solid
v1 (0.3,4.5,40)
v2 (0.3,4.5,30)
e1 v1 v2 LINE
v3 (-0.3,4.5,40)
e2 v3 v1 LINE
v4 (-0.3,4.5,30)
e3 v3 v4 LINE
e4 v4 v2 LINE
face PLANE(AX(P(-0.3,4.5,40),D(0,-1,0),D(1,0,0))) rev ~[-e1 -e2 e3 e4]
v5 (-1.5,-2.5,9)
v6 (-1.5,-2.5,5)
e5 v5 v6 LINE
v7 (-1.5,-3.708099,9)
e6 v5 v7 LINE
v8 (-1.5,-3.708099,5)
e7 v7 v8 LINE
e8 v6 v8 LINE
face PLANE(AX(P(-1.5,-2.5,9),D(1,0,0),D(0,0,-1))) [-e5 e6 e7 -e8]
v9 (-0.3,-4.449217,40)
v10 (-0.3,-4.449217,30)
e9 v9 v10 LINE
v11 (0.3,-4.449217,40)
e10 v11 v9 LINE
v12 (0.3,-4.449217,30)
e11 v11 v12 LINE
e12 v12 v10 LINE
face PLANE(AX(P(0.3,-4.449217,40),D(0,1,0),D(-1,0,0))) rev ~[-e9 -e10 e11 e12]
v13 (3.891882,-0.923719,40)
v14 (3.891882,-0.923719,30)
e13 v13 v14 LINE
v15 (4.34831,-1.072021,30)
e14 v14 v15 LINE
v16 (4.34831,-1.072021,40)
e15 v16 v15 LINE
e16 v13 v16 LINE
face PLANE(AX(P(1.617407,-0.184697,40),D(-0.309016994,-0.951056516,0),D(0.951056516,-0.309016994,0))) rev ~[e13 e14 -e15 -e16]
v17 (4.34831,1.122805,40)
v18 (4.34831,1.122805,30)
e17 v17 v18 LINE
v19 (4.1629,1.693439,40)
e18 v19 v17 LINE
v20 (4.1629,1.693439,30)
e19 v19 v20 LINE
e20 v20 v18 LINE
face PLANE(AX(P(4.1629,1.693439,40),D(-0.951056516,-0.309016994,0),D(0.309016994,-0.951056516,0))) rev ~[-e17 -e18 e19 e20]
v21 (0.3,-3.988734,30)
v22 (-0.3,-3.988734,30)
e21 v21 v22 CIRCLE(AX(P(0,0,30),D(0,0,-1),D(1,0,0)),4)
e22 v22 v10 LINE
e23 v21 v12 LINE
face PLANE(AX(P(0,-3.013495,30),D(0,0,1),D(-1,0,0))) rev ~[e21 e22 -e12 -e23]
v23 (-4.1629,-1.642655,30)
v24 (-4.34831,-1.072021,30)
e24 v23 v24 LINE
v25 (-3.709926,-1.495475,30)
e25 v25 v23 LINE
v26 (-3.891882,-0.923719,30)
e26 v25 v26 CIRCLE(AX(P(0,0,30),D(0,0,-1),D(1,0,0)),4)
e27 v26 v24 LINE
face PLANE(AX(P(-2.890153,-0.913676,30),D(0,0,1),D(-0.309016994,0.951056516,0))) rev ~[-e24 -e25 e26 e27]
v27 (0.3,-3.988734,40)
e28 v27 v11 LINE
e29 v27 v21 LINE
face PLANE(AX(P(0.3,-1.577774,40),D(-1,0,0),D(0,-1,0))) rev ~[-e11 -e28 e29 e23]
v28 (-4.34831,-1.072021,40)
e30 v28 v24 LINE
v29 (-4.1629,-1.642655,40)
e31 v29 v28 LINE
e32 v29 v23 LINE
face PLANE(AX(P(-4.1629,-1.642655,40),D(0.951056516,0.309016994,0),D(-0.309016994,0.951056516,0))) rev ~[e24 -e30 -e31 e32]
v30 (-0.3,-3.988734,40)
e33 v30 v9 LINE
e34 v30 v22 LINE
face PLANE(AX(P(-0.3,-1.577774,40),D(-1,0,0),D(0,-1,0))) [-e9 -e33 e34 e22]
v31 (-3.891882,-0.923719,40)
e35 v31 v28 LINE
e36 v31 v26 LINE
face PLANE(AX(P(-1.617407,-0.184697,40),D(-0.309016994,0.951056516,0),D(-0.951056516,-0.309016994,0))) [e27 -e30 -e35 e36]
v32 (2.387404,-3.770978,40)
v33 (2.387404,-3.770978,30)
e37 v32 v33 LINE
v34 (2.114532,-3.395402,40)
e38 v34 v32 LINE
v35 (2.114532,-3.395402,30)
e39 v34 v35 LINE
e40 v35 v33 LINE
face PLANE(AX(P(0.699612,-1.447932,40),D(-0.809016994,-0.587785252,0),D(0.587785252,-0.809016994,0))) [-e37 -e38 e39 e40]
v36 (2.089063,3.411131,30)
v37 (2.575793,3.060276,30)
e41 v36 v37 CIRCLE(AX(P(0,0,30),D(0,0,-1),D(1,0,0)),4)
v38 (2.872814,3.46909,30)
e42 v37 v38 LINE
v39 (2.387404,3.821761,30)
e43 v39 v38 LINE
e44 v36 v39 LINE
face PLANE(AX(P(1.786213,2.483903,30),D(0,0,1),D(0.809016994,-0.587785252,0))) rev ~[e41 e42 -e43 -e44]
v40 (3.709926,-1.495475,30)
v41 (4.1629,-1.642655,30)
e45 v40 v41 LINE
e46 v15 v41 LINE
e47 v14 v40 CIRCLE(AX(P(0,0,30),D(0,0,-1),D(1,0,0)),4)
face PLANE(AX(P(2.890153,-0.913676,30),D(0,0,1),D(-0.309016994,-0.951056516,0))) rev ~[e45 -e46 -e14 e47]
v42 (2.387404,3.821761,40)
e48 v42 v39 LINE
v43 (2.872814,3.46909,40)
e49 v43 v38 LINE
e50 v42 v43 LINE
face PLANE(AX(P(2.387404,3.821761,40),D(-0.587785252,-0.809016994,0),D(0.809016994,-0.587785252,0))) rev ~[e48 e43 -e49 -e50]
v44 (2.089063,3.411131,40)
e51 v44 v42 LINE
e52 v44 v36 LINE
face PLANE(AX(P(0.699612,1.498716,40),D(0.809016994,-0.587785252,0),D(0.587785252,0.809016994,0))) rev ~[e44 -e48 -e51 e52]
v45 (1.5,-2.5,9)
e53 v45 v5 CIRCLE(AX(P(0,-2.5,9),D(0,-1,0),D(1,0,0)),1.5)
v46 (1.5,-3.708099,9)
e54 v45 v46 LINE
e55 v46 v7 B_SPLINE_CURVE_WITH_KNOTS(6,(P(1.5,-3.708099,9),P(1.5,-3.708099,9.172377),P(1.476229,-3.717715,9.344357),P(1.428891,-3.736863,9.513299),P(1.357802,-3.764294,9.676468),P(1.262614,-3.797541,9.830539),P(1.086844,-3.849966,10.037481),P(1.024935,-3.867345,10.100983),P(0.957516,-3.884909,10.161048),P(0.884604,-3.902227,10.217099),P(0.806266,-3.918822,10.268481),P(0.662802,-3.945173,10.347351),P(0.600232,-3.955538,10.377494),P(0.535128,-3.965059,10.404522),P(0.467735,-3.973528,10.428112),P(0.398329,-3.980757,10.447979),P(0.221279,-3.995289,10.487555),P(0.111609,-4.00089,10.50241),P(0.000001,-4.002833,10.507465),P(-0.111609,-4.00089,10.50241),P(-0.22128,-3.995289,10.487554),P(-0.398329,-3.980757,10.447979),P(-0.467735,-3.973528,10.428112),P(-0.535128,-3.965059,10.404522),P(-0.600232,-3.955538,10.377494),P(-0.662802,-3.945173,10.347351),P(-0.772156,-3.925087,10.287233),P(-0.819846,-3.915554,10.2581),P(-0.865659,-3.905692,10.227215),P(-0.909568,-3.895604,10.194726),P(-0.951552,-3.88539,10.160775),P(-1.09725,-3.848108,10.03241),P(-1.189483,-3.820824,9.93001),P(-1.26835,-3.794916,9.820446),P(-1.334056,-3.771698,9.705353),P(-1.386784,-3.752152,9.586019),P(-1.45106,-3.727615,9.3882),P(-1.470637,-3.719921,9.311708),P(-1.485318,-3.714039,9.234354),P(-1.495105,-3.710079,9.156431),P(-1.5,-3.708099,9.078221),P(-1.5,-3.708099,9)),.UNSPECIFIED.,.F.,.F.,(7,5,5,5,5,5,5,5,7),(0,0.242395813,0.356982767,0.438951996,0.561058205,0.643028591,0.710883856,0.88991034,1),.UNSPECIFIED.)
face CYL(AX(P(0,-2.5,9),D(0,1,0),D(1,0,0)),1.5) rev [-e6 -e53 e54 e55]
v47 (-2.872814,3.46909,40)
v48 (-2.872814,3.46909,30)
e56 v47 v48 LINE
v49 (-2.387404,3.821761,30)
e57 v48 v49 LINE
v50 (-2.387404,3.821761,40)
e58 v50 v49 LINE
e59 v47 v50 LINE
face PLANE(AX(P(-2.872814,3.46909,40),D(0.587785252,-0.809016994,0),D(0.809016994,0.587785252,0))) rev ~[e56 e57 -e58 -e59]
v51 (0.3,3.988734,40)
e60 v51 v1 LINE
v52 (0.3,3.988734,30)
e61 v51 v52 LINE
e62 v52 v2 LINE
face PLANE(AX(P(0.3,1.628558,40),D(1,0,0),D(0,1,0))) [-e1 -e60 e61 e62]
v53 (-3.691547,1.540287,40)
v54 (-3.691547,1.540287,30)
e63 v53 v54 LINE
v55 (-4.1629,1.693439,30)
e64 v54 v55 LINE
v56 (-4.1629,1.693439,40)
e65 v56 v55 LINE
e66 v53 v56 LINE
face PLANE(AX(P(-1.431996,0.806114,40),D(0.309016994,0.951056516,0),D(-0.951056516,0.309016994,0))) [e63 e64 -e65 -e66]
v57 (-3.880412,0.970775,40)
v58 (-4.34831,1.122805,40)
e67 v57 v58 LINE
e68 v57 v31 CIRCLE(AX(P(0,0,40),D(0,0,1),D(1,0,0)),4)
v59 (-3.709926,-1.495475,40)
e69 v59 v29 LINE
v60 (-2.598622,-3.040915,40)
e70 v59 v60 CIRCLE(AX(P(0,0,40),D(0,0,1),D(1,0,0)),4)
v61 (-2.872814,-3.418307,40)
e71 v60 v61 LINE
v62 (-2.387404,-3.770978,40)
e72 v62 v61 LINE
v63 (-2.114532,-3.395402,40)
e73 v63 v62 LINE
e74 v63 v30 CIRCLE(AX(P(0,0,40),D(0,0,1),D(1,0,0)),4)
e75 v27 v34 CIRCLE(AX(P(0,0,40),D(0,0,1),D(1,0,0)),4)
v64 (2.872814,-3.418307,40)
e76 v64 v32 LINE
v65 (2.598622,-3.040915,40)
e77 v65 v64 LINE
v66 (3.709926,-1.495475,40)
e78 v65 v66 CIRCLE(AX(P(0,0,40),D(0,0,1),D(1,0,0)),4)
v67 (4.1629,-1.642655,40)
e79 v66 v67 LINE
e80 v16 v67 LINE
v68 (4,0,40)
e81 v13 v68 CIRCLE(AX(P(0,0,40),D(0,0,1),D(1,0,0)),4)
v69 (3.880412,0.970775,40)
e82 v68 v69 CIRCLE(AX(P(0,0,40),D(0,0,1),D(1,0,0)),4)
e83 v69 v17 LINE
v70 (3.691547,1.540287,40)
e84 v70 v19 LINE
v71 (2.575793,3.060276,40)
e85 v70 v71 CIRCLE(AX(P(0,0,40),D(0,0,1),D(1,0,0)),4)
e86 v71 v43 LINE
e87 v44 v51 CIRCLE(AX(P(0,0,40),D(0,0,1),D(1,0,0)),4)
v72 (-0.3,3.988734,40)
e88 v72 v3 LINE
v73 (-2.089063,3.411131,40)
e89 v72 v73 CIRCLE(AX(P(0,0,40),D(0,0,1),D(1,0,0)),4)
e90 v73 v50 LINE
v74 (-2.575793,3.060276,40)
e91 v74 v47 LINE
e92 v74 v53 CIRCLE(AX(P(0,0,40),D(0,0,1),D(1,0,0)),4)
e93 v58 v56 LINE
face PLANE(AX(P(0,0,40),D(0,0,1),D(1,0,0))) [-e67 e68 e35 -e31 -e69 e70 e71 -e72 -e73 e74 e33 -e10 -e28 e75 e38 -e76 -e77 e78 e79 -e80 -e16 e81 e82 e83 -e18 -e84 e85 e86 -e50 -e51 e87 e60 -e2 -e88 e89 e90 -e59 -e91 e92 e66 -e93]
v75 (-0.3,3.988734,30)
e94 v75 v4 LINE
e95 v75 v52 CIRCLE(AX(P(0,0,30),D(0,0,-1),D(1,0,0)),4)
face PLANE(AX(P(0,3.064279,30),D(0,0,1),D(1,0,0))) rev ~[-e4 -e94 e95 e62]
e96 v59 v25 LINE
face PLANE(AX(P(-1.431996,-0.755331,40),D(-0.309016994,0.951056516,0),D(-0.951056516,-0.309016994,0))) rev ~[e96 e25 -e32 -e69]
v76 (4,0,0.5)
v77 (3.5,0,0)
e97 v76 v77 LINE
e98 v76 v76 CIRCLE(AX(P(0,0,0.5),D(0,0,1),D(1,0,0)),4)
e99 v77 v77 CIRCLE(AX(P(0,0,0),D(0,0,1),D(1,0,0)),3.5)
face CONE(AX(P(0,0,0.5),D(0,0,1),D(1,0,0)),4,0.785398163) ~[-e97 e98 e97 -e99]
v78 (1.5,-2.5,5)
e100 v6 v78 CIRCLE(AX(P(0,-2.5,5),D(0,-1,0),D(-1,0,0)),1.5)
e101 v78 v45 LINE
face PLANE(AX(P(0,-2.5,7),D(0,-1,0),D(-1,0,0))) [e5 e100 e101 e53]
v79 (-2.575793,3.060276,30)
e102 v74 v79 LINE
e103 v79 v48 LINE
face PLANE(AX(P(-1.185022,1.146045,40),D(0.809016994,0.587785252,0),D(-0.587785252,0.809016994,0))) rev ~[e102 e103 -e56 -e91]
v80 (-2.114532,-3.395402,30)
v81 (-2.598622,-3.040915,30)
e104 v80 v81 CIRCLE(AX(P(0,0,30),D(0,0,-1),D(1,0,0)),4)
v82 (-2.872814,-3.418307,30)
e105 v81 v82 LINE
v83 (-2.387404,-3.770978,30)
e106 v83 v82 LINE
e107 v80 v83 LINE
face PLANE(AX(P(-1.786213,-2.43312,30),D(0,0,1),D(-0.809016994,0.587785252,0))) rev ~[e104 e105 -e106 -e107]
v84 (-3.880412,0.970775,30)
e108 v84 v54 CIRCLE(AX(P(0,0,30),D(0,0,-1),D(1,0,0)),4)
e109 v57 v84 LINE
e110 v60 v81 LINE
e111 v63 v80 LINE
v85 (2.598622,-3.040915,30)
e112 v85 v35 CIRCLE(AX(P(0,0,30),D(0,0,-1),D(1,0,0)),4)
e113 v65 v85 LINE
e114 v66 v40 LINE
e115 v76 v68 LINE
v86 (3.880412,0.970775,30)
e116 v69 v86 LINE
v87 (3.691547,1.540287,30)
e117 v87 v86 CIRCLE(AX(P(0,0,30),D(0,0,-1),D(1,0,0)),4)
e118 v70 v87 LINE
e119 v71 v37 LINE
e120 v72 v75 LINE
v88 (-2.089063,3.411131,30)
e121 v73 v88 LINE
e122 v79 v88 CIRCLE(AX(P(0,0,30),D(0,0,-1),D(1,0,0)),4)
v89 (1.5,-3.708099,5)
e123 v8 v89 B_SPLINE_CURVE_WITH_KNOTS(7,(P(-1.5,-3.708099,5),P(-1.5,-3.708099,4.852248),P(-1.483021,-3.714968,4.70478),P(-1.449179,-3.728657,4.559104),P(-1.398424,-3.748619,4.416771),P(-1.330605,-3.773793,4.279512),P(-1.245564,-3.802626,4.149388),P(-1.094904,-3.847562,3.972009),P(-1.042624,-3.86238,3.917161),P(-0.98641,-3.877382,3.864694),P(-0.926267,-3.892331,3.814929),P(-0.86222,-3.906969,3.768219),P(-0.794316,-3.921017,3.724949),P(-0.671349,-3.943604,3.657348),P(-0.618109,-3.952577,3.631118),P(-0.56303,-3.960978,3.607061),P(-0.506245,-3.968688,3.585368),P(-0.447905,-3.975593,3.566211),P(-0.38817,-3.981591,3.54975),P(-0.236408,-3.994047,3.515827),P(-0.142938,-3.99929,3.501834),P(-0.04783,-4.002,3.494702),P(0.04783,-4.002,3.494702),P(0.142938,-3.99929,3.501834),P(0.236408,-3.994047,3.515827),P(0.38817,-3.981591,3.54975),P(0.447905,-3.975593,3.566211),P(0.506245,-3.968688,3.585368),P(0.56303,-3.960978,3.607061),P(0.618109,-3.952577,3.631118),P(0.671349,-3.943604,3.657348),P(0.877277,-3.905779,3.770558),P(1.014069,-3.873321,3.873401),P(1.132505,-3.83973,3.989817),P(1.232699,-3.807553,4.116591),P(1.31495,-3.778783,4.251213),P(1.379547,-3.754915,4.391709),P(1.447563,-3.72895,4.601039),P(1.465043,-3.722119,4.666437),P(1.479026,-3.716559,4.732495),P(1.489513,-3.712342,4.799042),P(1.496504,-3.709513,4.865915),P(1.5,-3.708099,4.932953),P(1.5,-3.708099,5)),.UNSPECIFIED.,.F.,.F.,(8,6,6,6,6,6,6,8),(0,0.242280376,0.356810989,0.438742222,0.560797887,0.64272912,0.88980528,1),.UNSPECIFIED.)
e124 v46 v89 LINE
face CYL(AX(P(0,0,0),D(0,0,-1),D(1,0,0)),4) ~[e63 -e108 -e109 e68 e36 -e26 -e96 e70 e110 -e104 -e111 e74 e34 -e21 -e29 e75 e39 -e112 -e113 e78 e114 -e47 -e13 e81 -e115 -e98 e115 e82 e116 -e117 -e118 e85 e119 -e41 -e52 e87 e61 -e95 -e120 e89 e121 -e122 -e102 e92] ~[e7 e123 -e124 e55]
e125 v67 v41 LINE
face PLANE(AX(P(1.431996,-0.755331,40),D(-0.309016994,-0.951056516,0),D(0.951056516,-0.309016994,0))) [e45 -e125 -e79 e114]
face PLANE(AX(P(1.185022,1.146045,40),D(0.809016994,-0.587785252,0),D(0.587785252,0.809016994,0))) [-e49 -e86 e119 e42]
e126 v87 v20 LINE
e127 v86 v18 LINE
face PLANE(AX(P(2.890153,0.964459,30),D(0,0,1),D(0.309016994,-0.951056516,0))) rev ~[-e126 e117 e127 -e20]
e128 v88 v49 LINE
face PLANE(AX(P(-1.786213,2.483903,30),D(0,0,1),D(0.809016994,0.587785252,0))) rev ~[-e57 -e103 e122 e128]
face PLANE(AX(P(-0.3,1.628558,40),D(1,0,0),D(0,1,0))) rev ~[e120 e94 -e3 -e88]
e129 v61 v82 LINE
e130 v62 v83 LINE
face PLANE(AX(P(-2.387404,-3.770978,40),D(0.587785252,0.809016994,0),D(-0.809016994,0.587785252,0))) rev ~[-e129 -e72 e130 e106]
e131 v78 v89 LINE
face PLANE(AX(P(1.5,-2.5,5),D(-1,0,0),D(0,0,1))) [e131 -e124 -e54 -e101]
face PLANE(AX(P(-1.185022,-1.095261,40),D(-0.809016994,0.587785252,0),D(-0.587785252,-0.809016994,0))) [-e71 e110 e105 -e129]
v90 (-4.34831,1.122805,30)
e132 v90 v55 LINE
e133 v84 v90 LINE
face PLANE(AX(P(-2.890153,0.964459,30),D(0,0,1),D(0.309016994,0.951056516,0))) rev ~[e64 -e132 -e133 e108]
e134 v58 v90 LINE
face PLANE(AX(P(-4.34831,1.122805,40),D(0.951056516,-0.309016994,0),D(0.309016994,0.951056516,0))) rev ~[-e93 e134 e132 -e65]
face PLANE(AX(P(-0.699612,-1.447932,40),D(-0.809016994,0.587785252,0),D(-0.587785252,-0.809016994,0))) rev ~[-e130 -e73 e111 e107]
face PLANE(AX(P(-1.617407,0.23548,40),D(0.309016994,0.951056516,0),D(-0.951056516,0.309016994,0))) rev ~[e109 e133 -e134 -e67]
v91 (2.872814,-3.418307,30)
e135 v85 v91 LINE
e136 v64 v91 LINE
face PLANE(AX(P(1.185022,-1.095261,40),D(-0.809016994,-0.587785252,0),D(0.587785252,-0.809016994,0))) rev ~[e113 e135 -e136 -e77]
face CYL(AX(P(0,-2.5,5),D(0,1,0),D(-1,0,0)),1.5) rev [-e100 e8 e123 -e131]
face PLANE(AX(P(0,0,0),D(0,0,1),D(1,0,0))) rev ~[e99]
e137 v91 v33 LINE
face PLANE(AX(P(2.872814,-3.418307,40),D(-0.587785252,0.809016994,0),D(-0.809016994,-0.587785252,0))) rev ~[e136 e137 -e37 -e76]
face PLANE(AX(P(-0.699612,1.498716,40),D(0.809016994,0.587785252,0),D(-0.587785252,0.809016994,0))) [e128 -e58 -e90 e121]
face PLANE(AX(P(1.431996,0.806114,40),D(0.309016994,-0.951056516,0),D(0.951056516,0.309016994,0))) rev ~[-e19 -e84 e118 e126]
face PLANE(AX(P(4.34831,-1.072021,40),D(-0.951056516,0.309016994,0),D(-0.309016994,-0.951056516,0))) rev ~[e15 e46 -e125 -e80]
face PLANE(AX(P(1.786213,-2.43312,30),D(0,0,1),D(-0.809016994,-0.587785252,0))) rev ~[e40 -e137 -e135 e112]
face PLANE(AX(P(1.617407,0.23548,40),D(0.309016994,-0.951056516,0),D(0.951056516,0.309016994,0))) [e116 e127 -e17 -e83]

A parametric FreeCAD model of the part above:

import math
import FreeCAD as App
import Part
import Sketcher
Q = App.Units.Quantity


def edges_at(feature, points):
    """Names of the edges that pass closest to the given points."""
    edges = feature.Shape.Edges
    near = lambda p: min(range(len(edges)), key=lambda i: edges[i].distToShape(Part.Vertex(*p))[0])
    return sorted({f"Edge{near(p) + 1}" for p in points})

doc = App.newDocument("Part")
params = doc.addObject("Spreadsheet::Sheet", "Params")
for row, (alias, value) in enumerate([
    ("sketch1_diameter", "8 mm"),
    ("pad1_length", "40 mm"),
    ("sketch2_radius", "1.5 mm"),
    ("sketch2_height", "4 mm"),
    ("sketch3_width", "0.6 mm"),
    ("pad2_length", "10 mm"),
    ("chamfer_size", "0.5 mm"),
], start=1):
    params.set(f"A{row}", alias)
    params.set(f"B{row}", "=" + value)
    params.setAlias(f"B{row}", alias)

body = doc.addObject("PartDesign::Body", "Body")

sketch1 = body.newObject("Sketcher::SketchObject", "Sketch")
sketch1.AttachmentSupport = (doc.getObject("XY_Plane"), [""])
sketch1.MapMode = "FlatFace"
sketch1.addGeometry(Part.Circle(App.Vector(0, 0, 0), App.Vector(0, 0, 1), 4), False)
sketch1.addConstraint([
    Sketcher.Constraint("Coincident", 0, 3, -1, 1),
    Sketcher.Constraint("Diameter", 0, Q("8 mm")),
])
sketch1.setExpression("Constraints[1]", "Params.sketch1_diameter")
pad1 = body.newObject("PartDesign::Pad", "Pad")
pad1.Profile = sketch1
pad1.setExpression("Length", "Params.pad1_length")

sketch2 = body.newObject("Sketcher::SketchObject", "Sketch001")
sketch2.AttachmentSupport = (doc.getObject("XZ_Plane"), [""])
sketch2.MapMode = "FlatFace"
sketch2.AttachmentOffset = App.Placement(App.Vector(0, 0, 2.5), App.Rotation())
sketch2.addGeometry([
    Part.LineSegment(App.Vector(1.5, 9, 0), App.Vector(1.5, 5, 0)),
    Part.ArcOfCircle(Part.Circle(App.Vector(0, 5, 0), App.Vector(0, 0, 1), 1.5), math.radians(180), math.radians(360)),
    Part.LineSegment(App.Vector(-1.5, 5, 0), App.Vector(-1.5, 9, 0)),
    Part.ArcOfCircle(Part.Circle(App.Vector(0, 9, 0), App.Vector(0, 0, 1), 1.5), math.radians(0), math.radians(180)),
], False)
sketch2.addConstraint([
    Sketcher.Constraint("Tangent", 0, 2, 1, 2),
    Sketcher.Constraint("Tangent", 1, 1, 2, 1),
    Sketcher.Constraint("Tangent", 2, 2, 3, 2),
    Sketcher.Constraint("Tangent", 3, 1, 0, 1),
    Sketcher.Constraint("Vertical", 0),
    Sketcher.Constraint("Vertical", 2),
    Sketcher.Constraint("PointOnObject", 1, 3, -2),
    Sketcher.Constraint("Radius", 1, Q("1.5 mm")),
    Sketcher.Constraint("DistanceY", 0, 2, 0, 1, Q("4 mm")),
    Sketcher.Constraint("DistanceY", -1, 1, 1, 3, Q("5 mm")),
])
sketch2.setExpression("Constraints[7]", "Params.sketch2_radius")
sketch2.setExpression("Constraints[8]", "Params.sketch2_height")
pocket1 = body.newObject("PartDesign::Pocket", "Pocket")
pocket1.Profile = sketch2
pocket1.Type = "ThroughAll"
pocket1.Reversed = True

sketch3 = body.newObject("Sketcher::SketchObject", "Sketch002")
sketch3.AttachmentSupport = (doc.getObject("XY_Plane"), [""])
sketch3.MapMode = "FlatFace"
sketch3.AttachmentOffset = App.Placement(App.Vector(0, 0, 40), App.Rotation())
sketch3.addGeometry([
    Part.LineSegment(App.Vector(-0.3, 4.5, 0), App.Vector(-0.3, 1.628558, 0)),
    Part.LineSegment(App.Vector(-0.3, 1.628558, 0), App.Vector(0.3, 1.628558, 0)),
    Part.LineSegment(App.Vector(0.3, 1.628558, 0), App.Vector(0.3, 4.5, 0)),
    Part.LineSegment(App.Vector(0.3, 4.5, 0), App.Vector(-0.3, 4.5, 0)),
], False)
sketch3.addConstraint([
    Sketcher.Constraint("Coincident", 0, 2, 1, 1),
    Sketcher.Constraint("Coincident", 1, 2, 2, 1),
    Sketcher.Constraint("Coincident", 2, 2, 3, 1),
    Sketcher.Constraint("Coincident", 3, 2, 0, 1),
    Sketcher.Constraint("Vertical", 0),
    Sketcher.Constraint("Horizontal", 1),
    Sketcher.Constraint("Vertical", 2),
    Sketcher.Constraint("Horizontal", 3),
    Sketcher.Constraint("DistanceX", 1, 1, 1, 2, Q("0.6 mm")),
    Sketcher.Constraint("DistanceX", 0, 2, -1, 1, Q("0.3 mm")),
    Sketcher.Constraint("DistanceY", -1, 1, 2, 2, Q("4.5 mm")),
    Sketcher.Constraint("DistanceY", 0, 2, 0, 1, Q("2.871442 mm")),
])
sketch3.setExpression("Constraints[8]", "Params.sketch3_width")
pad2 = body.newObject("PartDesign::Pad", "Pad001")
pad2.Profile = sketch3
pad2.setExpression("Length", "Params.pad2_length")
pad2.Reversed = True
doc.recompute()

datumline = body.newObject("PartDesign::Line", "DatumLine")
datumline.Placement = App.Placement(App.Vector(0, 0.025392, 0), App.Rotation(App.Vector(0, 0, 1), App.Vector(0, 0, 1)))
polarpattern = body.newObject("PartDesign::PolarPattern", "PolarPattern")
polarpattern.Originals = [pad2]
polarpattern.Axis = (datumline, [""])
polarpattern.Angle = 360
polarpattern.Occurrences = 10
body.Tip = polarpattern
doc.recompute()

chamfer = body.newObject("PartDesign::Chamfer", "Chamfer")
chamfer.Base = (polarpattern, edges_at(polarpattern, [(-4, 0, 0)]))
chamfer.setExpression("Size", "Params.chamfer_size")

doc.recompute()
